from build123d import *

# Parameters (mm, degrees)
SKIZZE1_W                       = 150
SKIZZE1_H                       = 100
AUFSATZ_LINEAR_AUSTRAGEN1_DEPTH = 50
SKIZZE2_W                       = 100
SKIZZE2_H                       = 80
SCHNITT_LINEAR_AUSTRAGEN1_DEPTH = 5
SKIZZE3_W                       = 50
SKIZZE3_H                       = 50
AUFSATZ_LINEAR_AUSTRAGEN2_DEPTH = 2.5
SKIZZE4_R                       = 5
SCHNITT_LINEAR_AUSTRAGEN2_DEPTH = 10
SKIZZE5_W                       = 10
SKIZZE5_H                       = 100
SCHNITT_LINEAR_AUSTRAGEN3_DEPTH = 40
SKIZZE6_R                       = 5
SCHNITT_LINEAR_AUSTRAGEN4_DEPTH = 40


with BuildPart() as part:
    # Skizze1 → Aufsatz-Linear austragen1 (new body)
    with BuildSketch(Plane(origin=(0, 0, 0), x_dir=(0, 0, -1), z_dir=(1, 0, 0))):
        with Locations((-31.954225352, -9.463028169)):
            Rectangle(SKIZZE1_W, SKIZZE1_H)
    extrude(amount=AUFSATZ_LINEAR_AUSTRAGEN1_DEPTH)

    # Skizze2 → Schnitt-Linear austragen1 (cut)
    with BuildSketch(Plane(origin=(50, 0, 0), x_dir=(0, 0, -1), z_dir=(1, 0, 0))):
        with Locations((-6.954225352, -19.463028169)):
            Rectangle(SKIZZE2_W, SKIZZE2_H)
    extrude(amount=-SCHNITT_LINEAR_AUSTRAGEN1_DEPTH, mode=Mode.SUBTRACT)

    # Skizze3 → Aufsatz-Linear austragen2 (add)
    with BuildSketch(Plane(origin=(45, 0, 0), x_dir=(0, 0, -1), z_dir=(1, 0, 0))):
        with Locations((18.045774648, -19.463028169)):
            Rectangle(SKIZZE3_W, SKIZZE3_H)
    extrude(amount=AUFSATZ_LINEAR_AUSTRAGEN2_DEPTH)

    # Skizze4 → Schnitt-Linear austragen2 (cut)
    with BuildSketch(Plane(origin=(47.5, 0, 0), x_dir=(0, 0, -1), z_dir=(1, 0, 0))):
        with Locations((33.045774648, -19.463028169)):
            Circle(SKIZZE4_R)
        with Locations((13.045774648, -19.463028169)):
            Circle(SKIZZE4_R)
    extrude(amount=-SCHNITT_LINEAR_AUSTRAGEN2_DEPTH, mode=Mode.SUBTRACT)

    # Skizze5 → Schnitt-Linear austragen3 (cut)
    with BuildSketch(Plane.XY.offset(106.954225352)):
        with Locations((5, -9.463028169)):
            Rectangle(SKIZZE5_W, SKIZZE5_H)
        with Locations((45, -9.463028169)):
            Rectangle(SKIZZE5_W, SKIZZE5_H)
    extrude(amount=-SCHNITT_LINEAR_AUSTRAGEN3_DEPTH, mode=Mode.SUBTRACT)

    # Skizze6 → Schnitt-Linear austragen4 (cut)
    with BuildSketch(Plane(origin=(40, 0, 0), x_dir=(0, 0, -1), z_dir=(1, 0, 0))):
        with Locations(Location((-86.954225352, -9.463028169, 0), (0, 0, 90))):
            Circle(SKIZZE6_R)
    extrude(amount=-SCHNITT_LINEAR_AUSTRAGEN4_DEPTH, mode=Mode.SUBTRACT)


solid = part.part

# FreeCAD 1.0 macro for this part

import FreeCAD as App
import Part
import Sketcher

V = App.Vector

doc = App.newDocument("Part")
body = doc.addObject("PartDesign::Body", "Body")

sketch1 = body.newObject("Sketcher::SketchObject", "Sketch")
sketch1.AttachmentSupport = (doc.getObject("YZ_Plane"), [""])
sketch1.MapMode = "FlatFace"
sketch1.addGeometry([
    Part.LineSegment(V(40.536972, 106.954225, 0), V(-59.463028, 106.954225, 0)),
    Part.LineSegment(V(-59.463028, 106.954225, 0), V(-59.463028, -43.045775, 0)),
    Part.LineSegment(V(-59.463028, -43.045775, 0), V(40.536972, -43.045775, 0)),
    Part.LineSegment(V(40.536972, -43.045775, 0), V(40.536972, 106.954225, 0)),
], False)
sketch1.addConstraint([
    Sketcher.Constraint("Coincident", 0, 2, 1, 1),
    Sketcher.Constraint("Coincident", 1, 2, 2, 1),
    Sketcher.Constraint("Coincident", 2, 2, 3, 1),
    Sketcher.Constraint("Coincident", 3, 2, 0, 1),
    Sketcher.Constraint("Horizontal", 0),
    Sketcher.Constraint("Vertical", 1),
    Sketcher.Constraint("Horizontal", 2),
    Sketcher.Constraint("Vertical", 3),
    Sketcher.Constraint("DistanceX", 0, 2, 0, 1, 100.0),
    Sketcher.Constraint("DistanceY", 1, 2, 1, 1, 150.0),
    Sketcher.Constraint("DistanceX", 0, 2, -1, 1, 59.463028),
    Sketcher.Constraint("DistanceY", -1, 1, 0, 2, 106.954225),
])
pad1 = body.newObject("PartDesign::Pad", "Pad")
pad1.Profile = sketch1
pad1.Length = 50

sketch2 = body.newObject("Sketcher::SketchObject", "Sketch001")
sketch2.AttachmentSupport = (doc.getObject("YZ_Plane"), [""])
sketch2.MapMode = "FlatFace"
sketch2.AttachmentOffset = App.Placement(V(0, 0, 50), App.Rotation())
sketch2.addGeometry([
    Part.LineSegment(V(20.536972, 56.954225, 0), V(-59.463028, 56.954225, 0)),
    Part.LineSegment(V(-59.463028, 56.954225, 0), V(-59.463028, -43.045775, 0)),
    Part.LineSegment(V(-59.463028, -43.045775, 0), V(20.536972, -43.045775, 0)),
    Part.LineSegment(V(20.536972, -43.045775, 0), V(20.536972, 56.954225, 0)),
], False)
sketch2.addConstraint([
    Sketcher.Constraint("Coincident", 0, 2, 1, 1),
    Sketcher.Constraint("Coincident", 1, 2, 2, 1),
    Sketcher.Constraint("Coincident", 2, 2, 3, 1),
    Sketcher.Constraint("Coincident", 3, 2, 0, 1),
    Sketcher.Constraint("Horizontal", 0),
    Sketcher.Constraint("Vertical", 1),
    Sketcher.Constraint("Horizontal", 2),
    Sketcher.Constraint("Vertical", 3),
    Sketcher.Constraint("DistanceX", 0, 2, 0, 1, 80.0),
    Sketcher.Constraint("DistanceY", 1, 2, 1, 1, 100.0),
    Sketcher.Constraint("DistanceX", 0, 2, -1, 1, 59.463028),
    Sketcher.Constraint("DistanceY", -1, 1, 0, 2, 56.954225),
])
pocket1 = body.newObject("PartDesign::Pocket", "Pocket")
pocket1.Profile = sketch2
pocket1.Length = 5

sketch3 = body.newObject("Sketcher::SketchObject", "Sketch002")
sketch3.AttachmentSupport = (doc.getObject("YZ_Plane"), [""])
sketch3.MapMode = "FlatFace"
sketch3.AttachmentOffset = App.Placement(V(0, 0, 45), App.Rotation())
sketch3.addGeometry([
    Part.LineSegment(V(5.536972, 6.954225, 0), V(-44.463028, 6.954225, 0)),
    Part.LineSegment(V(-44.463028, 6.954225, 0), V(-44.463028, -43.045775, 0)),
    Part.LineSegment(V(-44.463028, -43.045775, 0), V(5.536972, -43.045775, 0)),
    Part.LineSegment(V(5.536972, -43.045775, 0), V(5.536972, 6.954225, 0)),
], False)
sketch3.addConstraint([
    Sketcher.Constraint("Coincident", 0, 2, 1, 1),
    Sketcher.Constraint("Coincident", 1, 2, 2, 1),
    Sketcher.Constraint("Coincident", 2, 2, 3, 1),
    Sketcher.Constraint("Coincident", 3, 2, 0, 1),
    Sketcher.Constraint("Horizontal", 0),
    Sketcher.Constraint("Vertical", 1),
    Sketcher.Constraint("Horizontal", 2),
    Sketcher.Constraint("Vertical", 3),
    Sketcher.Constraint("Equal", 2, 1),
    Sketcher.Constraint("DistanceX", 0, 2, 0, 1, 50.0),
    Sketcher.Constraint("DistanceX", 0, 2, -1, 1, 44.463028),
    Sketcher.Constraint("DistanceY", -1, 1, 0, 2, 6.954225),
])
pad2 = body.newObject("PartDesign::Pad", "Pad001")
pad2.Profile = sketch3
pad2.Length = 2.5

sketch4 = body.newObject("Sketcher::SketchObject", "Sketch003")
sketch4.AttachmentSupport = (doc.getObject("YZ_Plane"), [""])
sketch4.MapMode = "FlatFace"
sketch4.AttachmentOffset = App.Placement(V(0, 0, 47.5), App.Rotation())
sketch4.addGeometry([
    Part.Circle(V(-19.463028, -33.045775, 0), V(0, 0, 1), 5),
    Part.Circle(V(-19.463028, -13.045775, 0), V(0, 0, 1), 5),
], False)
sketch4.addConstraint([
    Sketcher.Constraint("Equal", 0, 1),
    Sketcher.Constraint("Vertical", 0, 3, 1, 3),
    Sketcher.Constraint("Diameter", 0, 10.0),
    Sketcher.Constraint("DistanceY", 0, 3, 1, 3, 20.0),
    Sketcher.Constraint("DistanceX", 0, 3, -1, 1, 19.463028),
    Sketcher.Constraint("DistanceY", 0, 3, -1, 1, 33.045775),
])
pocket2 = body.newObject("PartDesign::Pocket", "Pocket001")
pocket2.Profile = sketch4
pocket2.Length = 10

sketch5 = body.newObject("Sketcher::SketchObject", "Sketch004")
sketch5.AttachmentSupport = (doc.getObject("XY_Plane"), [""])
sketch5.MapMode = "FlatFace"
sketch5.AttachmentOffset = App.Placement(V(0, 0, 106.954225), App.Rotation())
sketch5.addGeometry([
    Part.LineSegment(V(0, 40.536972, 0), V(0, -59.463028, 0)),
    Part.LineSegment(V(0, -59.463028, 0), V(10, -59.463028, 0)),
    Part.LineSegment(V(10, -59.463028, 0), V(10, 40.536972, 0)),
    Part.LineSegment(V(10, 40.536972, 0), V(0, 40.536972, 0)),
    Part.LineSegment(V(40, 40.536972, 0), V(40, -59.463028, 0)),
    Part.LineSegment(V(40, -59.463028, 0), V(50, -59.463028, 0)),
    Part.LineSegment(V(50, -59.463028, 0), V(50, 40.536972, 0)),
    Part.LineSegment(V(50, 40.536972, 0), V(40, 40.536972, 0)),
], False)
sketch5.addConstraint([
    Sketcher.Constraint("Coincident", 0, 2, 1, 1),
    Sketcher.Constraint("Coincident", 1, 2, 2, 1),
    Sketcher.Constraint("Coincident", 2, 2, 3, 1),
    Sketcher.Constraint("Coincident", 3, 2, 0, 1),
    Sketcher.Constraint("Coincident", 4, 2, 5, 1),
    Sketcher.Constraint("Coincident", 5, 2, 6, 1),
    Sketcher.Constraint("Coincident", 6, 2, 7, 1),
    Sketcher.Constraint("Coincident", 7, 2, 4, 1),
    Sketcher.Constraint("Vertical", 0),
    Sketcher.Constraint("Horizontal", 1),
    Sketcher.Constraint("Vertical", 2),
    Sketcher.Constraint("Horizontal", 3),
    Sketcher.Constraint("Vertical", 4),
    Sketcher.Constraint("Horizontal", 5),
    Sketcher.Constraint("Vertical", 6),
    Sketcher.Constraint("Horizontal", 7),
    Sketcher.Constraint("PointOnObject", 0, 2, -2),
    Sketcher.Constraint("Horizontal", 1, 2, 4, 2),
    Sketcher.Constraint("Horizontal", 3, 2, 6, 2),
    Sketcher.Constraint("Equal", 3, 5),
    Sketcher.Constraint("DistanceX", 1, 1, 1, 2, 10.0),
    Sketcher.Constraint("DistanceY", 0, 2, 0, 1, 100.0),
    Sketcher.Constraint("DistanceX", -1, 1, 4, 2, 40.0),
    Sketcher.Constraint("DistanceY", 0, 2, -1, 1, 59.463028),
])
pocket3 = body.newObject("PartDesign::Pocket", "Pocket002")
pocket3.Profile = sketch5
pocket3.Length = 40

sketch6 = body.newObject("Sketcher::SketchObject", "Sketch005")
sketch6.AttachmentSupport = (doc.getObject("YZ_Plane"), [""])
sketch6.MapMode = "FlatFace"
sketch6.AttachmentOffset = App.Placement(V(0, 0, 40), App.Rotation())
sketch6.addGeometry(Part.Circle(V(-9.463028, 86.954225, 0), V(0, 0, 1), 5), False)
sketch6.addConstraint([
    Sketcher.Constraint("Diameter", 0, 10.0),
    Sketcher.Constraint("DistanceX", 0, 3, -1, 1, 9.463028),
    Sketcher.Constraint("DistanceY", -1, 1, 0, 3, 86.954225),
])
pocket4 = body.newObject("PartDesign::Pocket", "Pocket003")
pocket4.Profile = sketch6
pocket4.Length = 40

doc.recompute()
